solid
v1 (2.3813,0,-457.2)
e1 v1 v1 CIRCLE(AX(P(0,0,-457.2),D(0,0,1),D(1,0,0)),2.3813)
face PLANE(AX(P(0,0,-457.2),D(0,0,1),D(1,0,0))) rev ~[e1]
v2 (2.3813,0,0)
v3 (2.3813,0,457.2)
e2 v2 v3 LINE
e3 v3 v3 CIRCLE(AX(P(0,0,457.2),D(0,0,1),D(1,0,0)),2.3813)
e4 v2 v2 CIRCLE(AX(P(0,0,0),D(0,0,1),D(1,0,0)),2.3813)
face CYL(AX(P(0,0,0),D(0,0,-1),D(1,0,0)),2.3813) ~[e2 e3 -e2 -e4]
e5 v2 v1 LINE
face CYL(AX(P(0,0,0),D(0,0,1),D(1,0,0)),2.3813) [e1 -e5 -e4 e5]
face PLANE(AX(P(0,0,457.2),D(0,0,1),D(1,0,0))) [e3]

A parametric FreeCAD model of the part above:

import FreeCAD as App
import Part
import Sketcher
from FreeCAD import Vector
Q = App.Units.Quantity

doc = App.newDocument("Part")
body = doc.addObject("PartDesign::Body", "Body")

# Sketch on XY plane
sketch1 = doc.addObject("Sketcher::SketchObject", "Sketch")
body.addObject(sketch1)
sketch1.AttachmentSupport = (doc.XY_Plane, [""])
sketch1.MapMode = "FlatFace"
sketch1.addGeometry(Part.Circle(Vector(0, 0, 0), Vector(0, 0, 1), 2.3813), False)
sketch1.addConstraint(Sketcher.Constraint("Coincident", 0, 3, -1, 1))
sketch1.addConstraint(Sketcher.Constraint("Diameter", 0, Q("0.1875 in")))
pad1 = doc.addObject("PartDesign::Pad", "Pad")
body.addObject(pad1)
pad1.Profile = sketch1
pad1.Length = Q("36 in")
pad1.Midplane = True

doc.recompute()
